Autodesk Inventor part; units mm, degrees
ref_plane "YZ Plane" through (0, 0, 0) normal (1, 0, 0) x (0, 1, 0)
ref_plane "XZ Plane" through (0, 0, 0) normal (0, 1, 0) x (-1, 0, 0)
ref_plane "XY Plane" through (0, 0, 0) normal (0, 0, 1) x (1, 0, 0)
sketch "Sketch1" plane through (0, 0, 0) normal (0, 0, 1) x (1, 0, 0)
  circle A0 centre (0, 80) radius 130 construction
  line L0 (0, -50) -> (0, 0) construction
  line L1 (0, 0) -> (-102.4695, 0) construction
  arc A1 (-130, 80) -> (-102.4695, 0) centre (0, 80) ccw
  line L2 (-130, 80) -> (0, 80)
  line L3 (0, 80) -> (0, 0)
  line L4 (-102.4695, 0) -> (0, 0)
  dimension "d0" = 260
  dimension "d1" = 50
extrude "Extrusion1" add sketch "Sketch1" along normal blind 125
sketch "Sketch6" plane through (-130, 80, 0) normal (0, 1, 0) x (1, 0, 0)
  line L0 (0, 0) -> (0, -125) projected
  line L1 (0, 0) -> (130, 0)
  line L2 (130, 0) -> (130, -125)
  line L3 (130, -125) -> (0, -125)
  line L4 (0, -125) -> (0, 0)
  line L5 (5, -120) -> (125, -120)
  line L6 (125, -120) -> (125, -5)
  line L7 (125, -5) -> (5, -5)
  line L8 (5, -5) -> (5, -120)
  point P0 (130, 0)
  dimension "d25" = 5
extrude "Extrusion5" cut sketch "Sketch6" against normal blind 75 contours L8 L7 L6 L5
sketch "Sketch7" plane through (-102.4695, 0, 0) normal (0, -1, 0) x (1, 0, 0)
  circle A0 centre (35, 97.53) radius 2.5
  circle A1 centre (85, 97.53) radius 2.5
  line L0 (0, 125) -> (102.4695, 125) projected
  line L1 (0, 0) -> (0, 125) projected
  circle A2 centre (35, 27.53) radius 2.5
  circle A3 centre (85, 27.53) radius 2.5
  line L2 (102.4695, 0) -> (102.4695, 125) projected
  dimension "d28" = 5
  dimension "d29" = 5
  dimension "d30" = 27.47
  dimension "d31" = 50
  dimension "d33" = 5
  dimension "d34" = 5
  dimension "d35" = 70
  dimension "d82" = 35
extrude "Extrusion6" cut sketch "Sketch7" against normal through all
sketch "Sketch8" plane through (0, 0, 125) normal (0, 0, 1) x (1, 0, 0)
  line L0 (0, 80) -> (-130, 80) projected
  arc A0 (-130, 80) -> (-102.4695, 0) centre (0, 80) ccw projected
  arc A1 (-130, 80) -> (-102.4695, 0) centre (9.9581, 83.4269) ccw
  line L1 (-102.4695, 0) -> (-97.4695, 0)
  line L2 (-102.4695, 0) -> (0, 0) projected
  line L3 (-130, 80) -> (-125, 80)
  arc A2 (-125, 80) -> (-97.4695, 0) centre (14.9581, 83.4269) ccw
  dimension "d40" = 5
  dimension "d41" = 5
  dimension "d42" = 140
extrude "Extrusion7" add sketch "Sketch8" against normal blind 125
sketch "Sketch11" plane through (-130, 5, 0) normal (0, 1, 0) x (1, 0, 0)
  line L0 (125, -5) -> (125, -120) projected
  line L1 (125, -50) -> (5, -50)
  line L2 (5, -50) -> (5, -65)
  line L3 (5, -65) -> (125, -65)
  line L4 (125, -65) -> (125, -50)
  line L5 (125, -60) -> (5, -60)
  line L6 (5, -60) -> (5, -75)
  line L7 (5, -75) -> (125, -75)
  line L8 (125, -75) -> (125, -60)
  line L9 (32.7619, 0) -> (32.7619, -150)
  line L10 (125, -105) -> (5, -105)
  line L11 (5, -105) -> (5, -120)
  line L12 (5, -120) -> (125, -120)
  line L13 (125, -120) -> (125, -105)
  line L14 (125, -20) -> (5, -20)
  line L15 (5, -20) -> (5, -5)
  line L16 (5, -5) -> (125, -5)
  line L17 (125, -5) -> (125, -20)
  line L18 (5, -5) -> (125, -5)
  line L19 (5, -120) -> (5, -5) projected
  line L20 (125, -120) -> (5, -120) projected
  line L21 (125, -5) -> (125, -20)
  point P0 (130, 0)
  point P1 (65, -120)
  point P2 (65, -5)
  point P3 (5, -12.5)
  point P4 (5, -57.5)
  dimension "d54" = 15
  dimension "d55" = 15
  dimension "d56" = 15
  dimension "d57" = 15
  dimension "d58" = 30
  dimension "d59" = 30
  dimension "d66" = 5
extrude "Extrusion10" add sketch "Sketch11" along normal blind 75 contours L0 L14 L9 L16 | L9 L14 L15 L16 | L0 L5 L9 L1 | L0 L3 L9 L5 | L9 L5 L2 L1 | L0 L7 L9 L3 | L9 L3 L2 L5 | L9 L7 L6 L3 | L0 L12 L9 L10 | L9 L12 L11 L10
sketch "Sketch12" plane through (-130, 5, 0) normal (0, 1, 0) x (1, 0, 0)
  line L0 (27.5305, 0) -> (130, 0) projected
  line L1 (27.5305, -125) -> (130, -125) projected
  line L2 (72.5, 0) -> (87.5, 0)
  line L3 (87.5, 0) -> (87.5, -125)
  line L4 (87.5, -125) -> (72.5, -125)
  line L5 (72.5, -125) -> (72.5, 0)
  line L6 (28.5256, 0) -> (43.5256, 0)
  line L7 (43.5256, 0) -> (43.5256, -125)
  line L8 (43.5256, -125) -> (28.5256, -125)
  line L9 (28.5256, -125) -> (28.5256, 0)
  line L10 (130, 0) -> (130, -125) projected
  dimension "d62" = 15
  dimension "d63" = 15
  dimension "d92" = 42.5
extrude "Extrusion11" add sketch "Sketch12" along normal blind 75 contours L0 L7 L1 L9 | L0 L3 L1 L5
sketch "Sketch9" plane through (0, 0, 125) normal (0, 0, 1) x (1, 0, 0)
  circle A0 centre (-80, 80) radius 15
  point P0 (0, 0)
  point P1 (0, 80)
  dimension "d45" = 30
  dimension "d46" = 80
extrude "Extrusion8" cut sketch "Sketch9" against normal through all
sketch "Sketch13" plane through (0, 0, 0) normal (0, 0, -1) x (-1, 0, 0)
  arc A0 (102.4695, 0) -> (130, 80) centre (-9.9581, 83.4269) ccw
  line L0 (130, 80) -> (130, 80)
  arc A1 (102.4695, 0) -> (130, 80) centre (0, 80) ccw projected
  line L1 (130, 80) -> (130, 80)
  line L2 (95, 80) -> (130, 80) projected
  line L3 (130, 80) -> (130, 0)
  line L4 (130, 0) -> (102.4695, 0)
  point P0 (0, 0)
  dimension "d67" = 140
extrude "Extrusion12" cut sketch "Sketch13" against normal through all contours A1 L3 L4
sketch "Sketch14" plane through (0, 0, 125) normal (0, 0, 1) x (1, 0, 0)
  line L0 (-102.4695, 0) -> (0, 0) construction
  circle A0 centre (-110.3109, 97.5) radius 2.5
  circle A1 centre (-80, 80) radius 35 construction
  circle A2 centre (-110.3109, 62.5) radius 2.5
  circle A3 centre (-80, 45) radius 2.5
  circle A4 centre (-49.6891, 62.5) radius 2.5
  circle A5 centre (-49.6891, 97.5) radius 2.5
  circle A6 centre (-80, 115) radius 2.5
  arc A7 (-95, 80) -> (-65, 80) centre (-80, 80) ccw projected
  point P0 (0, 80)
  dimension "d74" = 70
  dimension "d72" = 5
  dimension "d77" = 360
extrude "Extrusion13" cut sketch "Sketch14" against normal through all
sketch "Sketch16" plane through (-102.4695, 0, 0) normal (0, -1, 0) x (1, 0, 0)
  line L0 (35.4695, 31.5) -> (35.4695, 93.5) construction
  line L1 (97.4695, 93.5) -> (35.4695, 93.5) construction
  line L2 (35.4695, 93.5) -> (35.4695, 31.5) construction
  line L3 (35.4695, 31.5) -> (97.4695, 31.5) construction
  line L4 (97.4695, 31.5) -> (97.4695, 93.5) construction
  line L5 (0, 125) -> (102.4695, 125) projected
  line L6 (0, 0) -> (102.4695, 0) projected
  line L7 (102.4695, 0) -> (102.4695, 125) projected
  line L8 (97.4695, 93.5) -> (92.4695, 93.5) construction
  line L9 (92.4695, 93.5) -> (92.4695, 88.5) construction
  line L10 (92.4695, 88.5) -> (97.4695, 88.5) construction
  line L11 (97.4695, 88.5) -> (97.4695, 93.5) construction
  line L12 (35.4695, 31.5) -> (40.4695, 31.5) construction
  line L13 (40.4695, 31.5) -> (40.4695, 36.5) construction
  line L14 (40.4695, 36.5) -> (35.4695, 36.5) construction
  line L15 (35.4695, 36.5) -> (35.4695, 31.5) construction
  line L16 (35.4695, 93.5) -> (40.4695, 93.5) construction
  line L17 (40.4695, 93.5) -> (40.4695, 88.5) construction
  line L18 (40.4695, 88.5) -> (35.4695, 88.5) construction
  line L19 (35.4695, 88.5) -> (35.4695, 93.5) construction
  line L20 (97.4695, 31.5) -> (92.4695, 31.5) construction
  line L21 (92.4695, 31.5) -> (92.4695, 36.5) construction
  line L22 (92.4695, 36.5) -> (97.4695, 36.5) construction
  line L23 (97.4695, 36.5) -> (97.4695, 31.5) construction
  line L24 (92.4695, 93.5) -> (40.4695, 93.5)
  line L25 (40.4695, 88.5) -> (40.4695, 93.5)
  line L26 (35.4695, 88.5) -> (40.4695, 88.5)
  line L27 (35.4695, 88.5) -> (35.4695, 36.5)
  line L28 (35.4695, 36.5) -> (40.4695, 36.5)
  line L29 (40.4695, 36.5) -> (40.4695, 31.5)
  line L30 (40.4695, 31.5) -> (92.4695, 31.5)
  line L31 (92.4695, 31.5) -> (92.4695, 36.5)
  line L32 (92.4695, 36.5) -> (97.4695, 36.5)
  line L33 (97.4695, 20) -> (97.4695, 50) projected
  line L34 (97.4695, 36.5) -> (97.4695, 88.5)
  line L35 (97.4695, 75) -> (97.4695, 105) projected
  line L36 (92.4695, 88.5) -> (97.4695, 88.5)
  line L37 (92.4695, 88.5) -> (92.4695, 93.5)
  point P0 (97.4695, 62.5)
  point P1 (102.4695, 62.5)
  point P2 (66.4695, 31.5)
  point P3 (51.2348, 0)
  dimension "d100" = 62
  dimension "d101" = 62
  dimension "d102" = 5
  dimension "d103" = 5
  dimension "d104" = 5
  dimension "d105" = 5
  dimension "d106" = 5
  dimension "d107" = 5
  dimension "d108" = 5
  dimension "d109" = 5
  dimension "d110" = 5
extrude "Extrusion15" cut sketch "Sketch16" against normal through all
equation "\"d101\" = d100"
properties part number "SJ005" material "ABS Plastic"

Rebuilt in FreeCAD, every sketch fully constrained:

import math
import FreeCAD as App
import Part
import Sketcher

V = App.Vector
Q = App.Units.Quantity

doc = App.newDocument("Part")
body = doc.addObject("PartDesign::Body", "Body")

sketch1 = doc.addObject("Sketcher::SketchObject", "Sketch")
body.addObject(sketch1)
sketch1.AttachmentSupport = (doc.XY_Plane, [""])
sketch1.MapMode = "FlatFace"
sketch1.addGeometry([
    Part.LineSegment(V(0, 80, 0), V(-130, 80, 0)),
    Part.ArcOfCircle(Part.Circle(V(0, 80, 0), V(0, 0, 1), 130), math.radians(180), math.radians(217.979875)),
    Part.LineSegment(V(-102.4695, 0, 0), V(0, 0, 0)),
    Part.LineSegment(V(0, 0, 0), V(0, 80, 0)),
], False)
sketch1.addConstraint([
    Sketcher.Constraint("Coincident", 0, 2, 1, 1),
    Sketcher.Constraint("Coincident", 1, 2, 2, 1),
    Sketcher.Constraint("Coincident", 2, 2, 3, 1),
    Sketcher.Constraint("Coincident", 3, 2, 0, 1),
    Sketcher.Constraint("Horizontal", 0),
    Sketcher.Constraint("Horizontal", 2),
    Sketcher.Constraint("Vertical", 3),
    Sketcher.Constraint("Coincident", 2, 2, -1, 1),
    Sketcher.Constraint("Coincident", 3, 2, 1, 3),
    Sketcher.Constraint("Radius", 1, Q("130 mm")),
    Sketcher.Constraint("DistanceY", 3, 1, 3, 2, Q("80 mm")),
])
pad1 = doc.addObject("PartDesign::Pad", "Pad")
body.addObject(pad1)
pad1.Profile = sketch1
pad1.Length = 125

sketch2 = doc.addObject("Sketcher::SketchObject", "Sketch001")
body.addObject(sketch2)
sketch2.AttachmentSupport = (doc.XZ_Plane, [""])
sketch2.MapMode = "FlatFace"
sketch2.AttachmentOffset = App.Placement(V(0, 0, -80), App.Rotation())
sketch2.addGeometry([
    Part.LineSegment(V(-125, 5, 0), V(-125, 120, 0)),
    Part.LineSegment(V(-125, 120, 0), V(-5, 120, 0)),
    Part.LineSegment(V(-5, 120, 0), V(-5, 5, 0)),
    Part.LineSegment(V(-5, 5, 0), V(-125, 5, 0)),
], False)
sketch2.addConstraint([
    Sketcher.Constraint("Coincident", 0, 2, 1, 1),
    Sketcher.Constraint("Coincident", 1, 2, 2, 1),
    Sketcher.Constraint("Coincident", 2, 2, 3, 1),
    Sketcher.Constraint("Coincident", 3, 2, 0, 1),
    Sketcher.Constraint("Vertical", 0),
    Sketcher.Constraint("Horizontal", 1),
    Sketcher.Constraint("Vertical", 2),
    Sketcher.Constraint("Horizontal", 3),
    Sketcher.Constraint("DistanceX", 1, 2, -1, 1, Q("5 mm")),
    Sketcher.Constraint("DistanceY", -1, 1, 2, 2, Q("5 mm")),
    Sketcher.Constraint("DistanceX", 1, 1, 1, 2, Q("120 mm")),
    Sketcher.Constraint("DistanceY", 0, 1, 0, 2, Q("115 mm")),
])
pocket1 = doc.addObject("PartDesign::Pocket", "Pocket")
body.addObject(pocket1)
pocket1.Profile = sketch2
pocket1.Length = 75
pocket1.Reversed = True

sketch3 = doc.addObject("Sketcher::SketchObject", "Sketch002")
body.addObject(sketch3)
sketch3.AttachmentSupport = (doc.XZ_Plane, [""])
sketch3.MapMode = "FlatFace"
sketch3.addGeometry([
    Part.Circle(V(-67.4695, 97.53, 0), V(0, 0, 1), 2.5),
    Part.Circle(V(-17.4695, 97.53, 0), V(0, 0, 1), 2.5),
    Part.Circle(V(-67.4695, 27.53, 0), V(0, 0, 1), 2.5),
    Part.Circle(V(-17.4695, 27.53, 0), V(0, 0, 1), 2.5),
], False)
sketch3.addConstraint([
    Sketcher.Constraint("Equal", 0, 1),
    Sketcher.Constraint("Equal", 1, 2),
    Sketcher.Constraint("Equal", 2, 3),
    Sketcher.Constraint("Horizontal", 0, 3, 1, 3),
    Sketcher.Constraint("Horizontal", 2, 3, 3, 3),
    Sketcher.Constraint("Vertical", 0, 3, 2, 3),
    Sketcher.Constraint("Vertical", 1, 3, 3, 3),
    Sketcher.Constraint("Diameter", 0, Q("5 mm")),
    Sketcher.Constraint("DistanceX", 0, 3, 1, 3, Q("50 mm")),
    Sketcher.Constraint("DistanceY", 2, 3, 0, 3, Q("70 mm")),
    Sketcher.Constraint("DistanceY", -1, 1, 0, 3, Q("97.53 mm")),
    Sketcher.Constraint("DistanceX", 0, 3, -1, 1, Q("67.4695 mm")),
])
pocket2 = doc.addObject("PartDesign::Pocket", "Pocket001")
body.addObject(pocket2)
pocket2.Profile = sketch3
pocket2.Type = "ThroughAll"

sketch4 = doc.addObject("Sketcher::SketchObject", "Sketch003")
body.addObject(sketch4)
sketch4.AttachmentSupport = (doc.XY_Plane, [""])
sketch4.MapMode = "FlatFace"
sketch4.AttachmentOffset = App.Placement(V(0, 0, 125), App.Rotation())
sketch4.addGeometry([
    Part.ArcOfCircle(Part.Circle(V(14.9581, 83.4269, 0), V(0, 0, 1), 140.000048), math.radians(-178.597382), math.radians(-143.422738)),
    Part.LineSegment(V(-125, 80, 0), V(-130, 80, 0)),
    Part.ArcOfCircle(Part.Circle(V(0, 80, 0), V(0, 0, 1), 130), math.radians(180), math.radians(217.979875)),
    Part.LineSegment(V(-102.4695, 0, 0), V(-97.4695, 0, 0)),
], False)
sketch4.addConstraint([
    Sketcher.Constraint("Coincident", 0, 1, 1, 1),
    Sketcher.Constraint("Coincident", 1, 2, 2, 1),
    Sketcher.Constraint("Coincident", 2, 2, 3, 1),
    Sketcher.Constraint("Coincident", 3, 2, 0, 2),
    Sketcher.Constraint("Horizontal", 1),
    Sketcher.Constraint("Horizontal", 3),
    Sketcher.Constraint("PointOnObject", 2, 3, -2),
    Sketcher.Constraint("PointOnObject", 2, 2, -1),
    Sketcher.Constraint("Horizontal", 2, 3, 0, 1),
    Sketcher.Constraint("Equal", 1, 3),
    Sketcher.Constraint("Radius", 0, Q("140 mm")),
    Sketcher.Constraint("DistanceX", 1, 2, 1, 1, Q("5 mm")),
    Sketcher.Constraint("Radius", 2, Q("130 mm")),
    Sketcher.Constraint("DistanceY", -1, 1, 2, 3, Q("80 mm")),
])
pad2 = doc.addObject("PartDesign::Pad", "Pad001")
body.addObject(pad2)
pad2.Profile = sketch4
pad2.Length = 125
pad2.Reversed = True

sketch5 = doc.addObject("Sketcher::SketchObject", "Sketch004")
body.addObject(sketch5)
sketch5.AttachmentSupport = (doc.XZ_Plane, [""])
sketch5.MapMode = "FlatFace"
sketch5.AttachmentOffset = App.Placement(V(0, 0, -5), App.Rotation())
sketch5.addGeometry([
    Part.LineSegment(V(-5, 20, 0), V(-5, 5, 0)),
    Part.LineSegment(V(-5, 5, 0), V(-125, 5, 0)),
    Part.LineSegment(V(-125, 5, 0), V(-125, 20, 0)),
    Part.LineSegment(V(-125, 20, 0), V(-5, 20, 0)),
    Part.LineSegment(V(-5, 50, 0), V(-125, 50, 0)),
    Part.LineSegment(V(-125, 50, 0), V(-125, 75, 0)),
    Part.LineSegment(V(-125, 75, 0), V(-5, 75, 0)),
    Part.LineSegment(V(-5, 75, 0), V(-5, 50, 0)),
    Part.LineSegment(V(-5, 120, 0), V(-5, 105, 0)),
    Part.LineSegment(V(-5, 105, 0), V(-125, 105, 0)),
    Part.LineSegment(V(-125, 105, 0), V(-125, 120, 0)),
    Part.LineSegment(V(-125, 120, 0), V(-5, 120, 0)),
], False)
sketch5.addConstraint([
    Sketcher.Constraint("Coincident", 0, 2, 1, 1),
    Sketcher.Constraint("Coincident", 1, 2, 2, 1),
    Sketcher.Constraint("Coincident", 2, 2, 3, 1),
    Sketcher.Constraint("Coincident", 3, 2, 0, 1),
    Sketcher.Constraint("Coincident", 4, 2, 5, 1),
    Sketcher.Constraint("Coincident", 5, 2, 6, 1),
    Sketcher.Constraint("Coincident", 6, 2, 7, 1),
    Sketcher.Constraint("Coincident", 7, 2, 4, 1),
    Sketcher.Constraint("Coincident", 8, 2, 9, 1),
    Sketcher.Constraint("Coincident", 9, 2, 10, 1),
    Sketcher.Constraint("Coincident", 10, 2, 11, 1),
    Sketcher.Constraint("Coincident", 11, 2, 8, 1),
    Sketcher.Constraint("Vertical", 0),
    Sketcher.Constraint("Horizontal", 1),
    Sketcher.Constraint("Vertical", 2),
    Sketcher.Constraint("Horizontal", 3),
    Sketcher.Constraint("Horizontal", 4),
    Sketcher.Constraint("Vertical", 5),
    Sketcher.Constraint("Horizontal", 6),
    Sketcher.Constraint("Vertical", 7),
    Sketcher.Constraint("Vertical", 8),
    Sketcher.Constraint("Horizontal", 9),
    Sketcher.Constraint("Vertical", 10),
    Sketcher.Constraint("Horizontal", 11),
    Sketcher.Constraint("Vertical", 2, 2, 4, 2),
    Sketcher.Constraint("Vertical", 3, 2, 6, 2),
    Sketcher.Constraint("Vertical", 7, 2, 8, 2),
    Sketcher.Constraint("Vertical", 5, 2, 9, 2),
    Sketcher.Constraint("Equal", 2, 8),
    Sketcher.Constraint("DistanceY", 0, 2, 0, 1, Q("15 mm")),
    Sketcher.Constraint("DistanceX", 0, 2, -1, 1, Q("5 mm")),
    Sketcher.Constraint("DistanceY", -1, 1, 0, 2, Q("5 mm")),
    Sketcher.Constraint("DistanceY", 2, 2, 4, 2, Q("30 mm")),
    Sketcher.Constraint("DistanceY", 6, 2, 8, 2, Q("30 mm")),
    Sketcher.Constraint("DistanceX", 1, 2, 1, 1, Q("120 mm")),
    Sketcher.Constraint("DistanceY", 5, 1, 5, 2, Q("25 mm")),
])
pad3 = doc.addObject("PartDesign::Pad", "Pad002")
body.addObject(pad3)
pad3.Profile = sketch5
pad3.Length = 75
pad3.Reversed = True

sketch6 = doc.addObject("Sketcher::SketchObject", "Sketch005")
body.addObject(sketch6)
sketch6.AttachmentSupport = (doc.XZ_Plane, [""])
sketch6.MapMode = "FlatFace"
sketch6.AttachmentOffset = App.Placement(V(0, 0, -5), App.Rotation())
sketch6.addGeometry([
    Part.LineSegment(V(-86.4744, 0, 0), V(-101.4744, 0, 0)),
    Part.LineSegment(V(-101.4744, 0, 0), V(-101.4744, 125, 0)),
    Part.LineSegment(V(-101.4744, 125, 0), V(-86.4744, 125, 0)),
    Part.LineSegment(V(-86.4744, 125, 0), V(-86.4744, 0, 0)),
    Part.LineSegment(V(-42.5, 0, 0), V(-57.5, 0, 0)),
    Part.LineSegment(V(-57.5, 0, 0), V(-57.5, 125, 0)),
    Part.LineSegment(V(-57.5, 125, 0), V(-42.5, 125, 0)),
    Part.LineSegment(V(-42.5, 125, 0), V(-42.5, 0, 0)),
], False)
sketch6.addConstraint([
    Sketcher.Constraint("Coincident", 0, 2, 1, 1),
    Sketcher.Constraint("Coincident", 1, 2, 2, 1),
    Sketcher.Constraint("Coincident", 2, 2, 3, 1),
    Sketcher.Constraint("Coincident", 3, 2, 0, 1),
    Sketcher.Constraint("Coincident", 4, 2, 5, 1),
    Sketcher.Constraint("Coincident", 5, 2, 6, 1),
    Sketcher.Constraint("Coincident", 6, 2, 7, 1),
    Sketcher.Constraint("Coincident", 7, 2, 4, 1),
    Sketcher.Constraint("Horizontal", 0),
    Sketcher.Constraint("Vertical", 1),
    Sketcher.Constraint("Horizontal", 2),
    Sketcher.Constraint("Vertical", 3),
    Sketcher.Constraint("Horizontal", 4),
    Sketcher.Constraint("Vertical", 5),
    Sketcher.Constraint("Horizontal", 6),
    Sketcher.Constraint("Vertical", 7),
    Sketcher.Constraint("PointOnObject", 0, 2, -1),
    Sketcher.Constraint("PointOnObject", 4, 2, -1),
    Sketcher.Constraint("Horizontal", 2, 2, 5, 2),
    Sketcher.Constraint("Equal", 2, 4),
    Sketcher.Constraint("DistanceX", 0, 2, 0, 1, Q("15 mm")),
    Sketcher.Constraint("DistanceX", 6, 2, -1, 1, Q("42.5 mm")),
    Sketcher.Constraint("DistanceY", 1, 1, 1, 2, Q("125 mm")),
    Sketcher.Constraint("DistanceX", 0, 2, -1, 1, Q("101.4744 mm")),
])
pad4 = doc.addObject("PartDesign::Pad", "Pad003")
body.addObject(pad4)
pad4.Profile = sketch6
pad4.Length = 75
pad4.Reversed = True

sketch7 = doc.addObject("Sketcher::SketchObject", "Sketch006")
body.addObject(sketch7)
sketch7.AttachmentSupport = (doc.XY_Plane, [""])
sketch7.MapMode = "FlatFace"
sketch7.AttachmentOffset = App.Placement(V(0, 0, 125), App.Rotation())
sketch7.addGeometry(Part.Circle(V(-80, 80, 0), V(0, 0, 1), 15), False)
sketch7.addConstraint([
    Sketcher.Constraint("Diameter", 0, Q("30 mm")),
    Sketcher.Constraint("DistanceX", 0, 3, -1, 1, Q("80 mm")),
    Sketcher.Constraint("DistanceY", -1, 1, 0, 3, Q("80 mm")),
])
pocket3 = doc.addObject("PartDesign::Pocket", "Pocket002")
body.addObject(pocket3)
pocket3.Profile = sketch7
pocket3.Type = "ThroughAll"

sketch8 = doc.addObject("Sketcher::SketchObject", "Sketch007")
body.addObject(sketch8)
sketch8.AttachmentSupport = (doc.XY_Plane, [""])
sketch8.MapMode = "FlatFace"
sketch8.addGeometry([
    Part.ArcOfCircle(Part.Circle(V(0, 80, 0), V(0, 0, 1), 129.999994), math.radians(180), math.radians(217.979875)),
    Part.LineSegment(V(-102.4695, 0, 0), V(-130, 0, 0)),
    Part.LineSegment(V(-130, 0, 0), V(-130, 80, 0)),
], False)
sketch8.addConstraint([
    Sketcher.Constraint("Coincident", 0, 2, 1, 1),
    Sketcher.Constraint("Coincident", 1, 2, 2, 1),
    Sketcher.Constraint("Tangent", 2, 2, 0, 1),
    Sketcher.Constraint("Horizontal", 1),
    Sketcher.Constraint("Vertical", 2),
    Sketcher.Constraint("PointOnObject", 0, 3, -2),
    Sketcher.Constraint("PointOnObject", 0, 2, -1),
    Sketcher.Constraint("Radius", 0, Q("130 mm")),
    Sketcher.Constraint("DistanceY", 2, 1, 2, 2, Q("80 mm")),
])
pocket4 = doc.addObject("PartDesign::Pocket", "Pocket003")
body.addObject(pocket4)
pocket4.Profile = sketch8
pocket4.Type = "ThroughAll"
pocket4.Reversed = True

sketch9 = doc.addObject("Sketcher::SketchObject", "Sketch008")
body.addObject(sketch9)
sketch9.AttachmentSupport = (doc.XY_Plane, [""])
sketch9.MapMode = "FlatFace"
sketch9.AttachmentOffset = App.Placement(V(0, 0, 125), App.Rotation())
sketch9.addGeometry([
    Part.Circle(V(-110.3109, 97.5, 0), V(0, 0, 1), 2.5),
    Part.Circle(V(-110.3109, 62.5, 0), V(0, 0, 1), 2.5),
    Part.Circle(V(-80, 45, 0), V(0, 0, 1), 2.5),
    Part.Circle(V(-49.6891, 62.5, 0), V(0, 0, 1), 2.5),
    Part.Circle(V(-49.6891, 97.5, 0), V(0, 0, 1), 2.5),
    Part.Circle(V(-80, 115, 0), V(0, 0, 1), 2.5),
], False)
sketch9.addConstraint([
    Sketcher.Constraint("Equal", 0, 1),
    Sketcher.Constraint("Equal", 1, 2),
    Sketcher.Constraint("Equal", 2, 3),
    Sketcher.Constraint("Equal", 3, 4),
    Sketcher.Constraint("Equal", 4, 5),
    Sketcher.Constraint("Horizontal", 1, 3, 3, 3),
    Sketcher.Constraint("Horizontal", 0, 3, 4, 3),
    Sketcher.Constraint("Vertical", 0, 3, 1, 3),
    Sketcher.Constraint("Vertical", 3, 3, 4, 3),
    Sketcher.Constraint("Vertical", 2, 3, 5, 3),
    Sketcher.Constraint("Diameter", 0, Q("5 mm")),
    Sketcher.Constraint("DistanceY", 2, 3, 5, 3, Q("70 mm")),
    Sketcher.Constraint("DistanceX", 2, 3, -1, 1, Q("80 mm")),
    Sketcher.Constraint("DistanceY", -1, 1, 2, 3, Q("45 mm")),
    Sketcher.Constraint("DistanceY", 1, 3, 0, 3, Q("35 mm")),
    Sketcher.Constraint("DistanceY", -1, 1, 0, 3, Q("97.5 mm")),
    Sketcher.Constraint("DistanceX", 0, 3, -1, 1, Q("110.311 mm")),
    Sketcher.Constraint("DistanceX", 3, 3, -1, 1, Q("49.689 mm")),
])
pocket5 = doc.addObject("PartDesign::Pocket", "Pocket004")
body.addObject(pocket5)
pocket5.Profile = sketch9
pocket5.Type = "ThroughAll"

sketch10 = doc.addObject("Sketcher::SketchObject", "Sketch009")
body.addObject(sketch10)
sketch10.AttachmentSupport = (doc.XZ_Plane, [""])
sketch10.MapMode = "FlatFace"
sketch10.addGeometry([
    Part.LineSegment(V(-10, 88.5, 0), V(-10, 93.5, 0)),
    Part.LineSegment(V(-10, 93.5, 0), V(-62, 93.5, 0)),
    Part.LineSegment(V(-62, 93.5, 0), V(-62, 88.5, 0)),
    Part.LineSegment(V(-62, 88.5, 0), V(-67, 88.5, 0)),
    Part.LineSegment(V(-67, 88.5, 0), V(-67, 36.5, 0)),
    Part.LineSegment(V(-67, 36.5, 0), V(-62, 36.5, 0)),
    Part.LineSegment(V(-62, 36.5, 0), V(-62, 31.5, 0)),
    Part.LineSegment(V(-62, 31.5, 0), V(-10, 31.5, 0)),
    Part.LineSegment(V(-10, 31.5, 0), V(-10, 36.5, 0)),
    Part.LineSegment(V(-10, 36.5, 0), V(-5, 36.5, 0)),
    Part.LineSegment(V(-5, 36.5, 0), V(-5, 88.5, 0)),
    Part.LineSegment(V(-5, 88.5, 0), V(-10, 88.5, 0)),
], False)
sketch10.addConstraint([
    Sketcher.Constraint("Coincident", 0, 2, 1, 1),
    Sketcher.Constraint("Coincident", 1, 2, 2, 1),
    Sketcher.Constraint("Coincident", 2, 2, 3, 1),
    Sketcher.Constraint("Coincident", 3, 2, 4, 1),
    Sketcher.Constraint("Coincident", 4, 2, 5, 1),
    Sketcher.Constraint("Coincident", 5, 2, 6, 1),
    Sketcher.Constraint("Coincident", 6, 2, 7, 1),
    Sketcher.Constraint("Coincident", 7, 2, 8, 1),
    Sketcher.Constraint("Coincident", 8, 2, 9, 1),
    Sketcher.Constraint("Coincident", 9, 2, 10, 1),
    Sketcher.Constraint("Coincident", 10, 2, 11, 1),
    Sketcher.Constraint("Coincident", 11, 2, 0, 1),
    Sketcher.Constraint("Vertical", 0),
    Sketcher.Constraint("Horizontal", 1),
    Sketcher.Constraint("Vertical", 2),
    Sketcher.Constraint("Horizontal", 3),
    Sketcher.Constraint("Vertical", 4),
    Sketcher.Constraint("Horizontal", 5),
    Sketcher.Constraint("Vertical", 6),
    Sketcher.Constraint("Horizontal", 7),
    Sketcher.Constraint("Vertical", 8),
    Sketcher.Constraint("Horizontal", 9),
    Sketcher.Constraint("Vertical", 10),
    Sketcher.Constraint("Horizontal", 11),
    Sketcher.Constraint("Horizontal", 5, 2, 8, 2),
    Sketcher.Constraint("Horizontal", 3, 2, 10, 2),
    Sketcher.Constraint("Vertical", 2, 2, 5, 2),
    Sketcher.Constraint("Vertical", 0, 2, 7, 2),
    Sketcher.Constraint("Equal", 5, 9),
    Sketcher.Constraint("Equal", 11, 0),
    Sketcher.Constraint("Equal", 7, 4),
    Sketcher.Constraint("Equal", 2, 6),
    Sketcher.Constraint("DistanceX", 3, 2, 3, 1, Q("5 mm")),
    Sketcher.Constraint("DistanceX", 1, 2, -1, 1, Q("62 mm")),
    Sketcher.Constraint("DistanceX", 9, 2, -1, 1, Q("5 mm")),
    Sketcher.Constraint("DistanceY", -1, 1, 0, 2, Q("93.5 mm")),
])
pocket6 = doc.addObject("PartDesign::Pocket", "Pocket005")
body.addObject(pocket6)
pocket6.Profile = sketch10
pocket6.Type = "ThroughAll"

doc.recompute()
